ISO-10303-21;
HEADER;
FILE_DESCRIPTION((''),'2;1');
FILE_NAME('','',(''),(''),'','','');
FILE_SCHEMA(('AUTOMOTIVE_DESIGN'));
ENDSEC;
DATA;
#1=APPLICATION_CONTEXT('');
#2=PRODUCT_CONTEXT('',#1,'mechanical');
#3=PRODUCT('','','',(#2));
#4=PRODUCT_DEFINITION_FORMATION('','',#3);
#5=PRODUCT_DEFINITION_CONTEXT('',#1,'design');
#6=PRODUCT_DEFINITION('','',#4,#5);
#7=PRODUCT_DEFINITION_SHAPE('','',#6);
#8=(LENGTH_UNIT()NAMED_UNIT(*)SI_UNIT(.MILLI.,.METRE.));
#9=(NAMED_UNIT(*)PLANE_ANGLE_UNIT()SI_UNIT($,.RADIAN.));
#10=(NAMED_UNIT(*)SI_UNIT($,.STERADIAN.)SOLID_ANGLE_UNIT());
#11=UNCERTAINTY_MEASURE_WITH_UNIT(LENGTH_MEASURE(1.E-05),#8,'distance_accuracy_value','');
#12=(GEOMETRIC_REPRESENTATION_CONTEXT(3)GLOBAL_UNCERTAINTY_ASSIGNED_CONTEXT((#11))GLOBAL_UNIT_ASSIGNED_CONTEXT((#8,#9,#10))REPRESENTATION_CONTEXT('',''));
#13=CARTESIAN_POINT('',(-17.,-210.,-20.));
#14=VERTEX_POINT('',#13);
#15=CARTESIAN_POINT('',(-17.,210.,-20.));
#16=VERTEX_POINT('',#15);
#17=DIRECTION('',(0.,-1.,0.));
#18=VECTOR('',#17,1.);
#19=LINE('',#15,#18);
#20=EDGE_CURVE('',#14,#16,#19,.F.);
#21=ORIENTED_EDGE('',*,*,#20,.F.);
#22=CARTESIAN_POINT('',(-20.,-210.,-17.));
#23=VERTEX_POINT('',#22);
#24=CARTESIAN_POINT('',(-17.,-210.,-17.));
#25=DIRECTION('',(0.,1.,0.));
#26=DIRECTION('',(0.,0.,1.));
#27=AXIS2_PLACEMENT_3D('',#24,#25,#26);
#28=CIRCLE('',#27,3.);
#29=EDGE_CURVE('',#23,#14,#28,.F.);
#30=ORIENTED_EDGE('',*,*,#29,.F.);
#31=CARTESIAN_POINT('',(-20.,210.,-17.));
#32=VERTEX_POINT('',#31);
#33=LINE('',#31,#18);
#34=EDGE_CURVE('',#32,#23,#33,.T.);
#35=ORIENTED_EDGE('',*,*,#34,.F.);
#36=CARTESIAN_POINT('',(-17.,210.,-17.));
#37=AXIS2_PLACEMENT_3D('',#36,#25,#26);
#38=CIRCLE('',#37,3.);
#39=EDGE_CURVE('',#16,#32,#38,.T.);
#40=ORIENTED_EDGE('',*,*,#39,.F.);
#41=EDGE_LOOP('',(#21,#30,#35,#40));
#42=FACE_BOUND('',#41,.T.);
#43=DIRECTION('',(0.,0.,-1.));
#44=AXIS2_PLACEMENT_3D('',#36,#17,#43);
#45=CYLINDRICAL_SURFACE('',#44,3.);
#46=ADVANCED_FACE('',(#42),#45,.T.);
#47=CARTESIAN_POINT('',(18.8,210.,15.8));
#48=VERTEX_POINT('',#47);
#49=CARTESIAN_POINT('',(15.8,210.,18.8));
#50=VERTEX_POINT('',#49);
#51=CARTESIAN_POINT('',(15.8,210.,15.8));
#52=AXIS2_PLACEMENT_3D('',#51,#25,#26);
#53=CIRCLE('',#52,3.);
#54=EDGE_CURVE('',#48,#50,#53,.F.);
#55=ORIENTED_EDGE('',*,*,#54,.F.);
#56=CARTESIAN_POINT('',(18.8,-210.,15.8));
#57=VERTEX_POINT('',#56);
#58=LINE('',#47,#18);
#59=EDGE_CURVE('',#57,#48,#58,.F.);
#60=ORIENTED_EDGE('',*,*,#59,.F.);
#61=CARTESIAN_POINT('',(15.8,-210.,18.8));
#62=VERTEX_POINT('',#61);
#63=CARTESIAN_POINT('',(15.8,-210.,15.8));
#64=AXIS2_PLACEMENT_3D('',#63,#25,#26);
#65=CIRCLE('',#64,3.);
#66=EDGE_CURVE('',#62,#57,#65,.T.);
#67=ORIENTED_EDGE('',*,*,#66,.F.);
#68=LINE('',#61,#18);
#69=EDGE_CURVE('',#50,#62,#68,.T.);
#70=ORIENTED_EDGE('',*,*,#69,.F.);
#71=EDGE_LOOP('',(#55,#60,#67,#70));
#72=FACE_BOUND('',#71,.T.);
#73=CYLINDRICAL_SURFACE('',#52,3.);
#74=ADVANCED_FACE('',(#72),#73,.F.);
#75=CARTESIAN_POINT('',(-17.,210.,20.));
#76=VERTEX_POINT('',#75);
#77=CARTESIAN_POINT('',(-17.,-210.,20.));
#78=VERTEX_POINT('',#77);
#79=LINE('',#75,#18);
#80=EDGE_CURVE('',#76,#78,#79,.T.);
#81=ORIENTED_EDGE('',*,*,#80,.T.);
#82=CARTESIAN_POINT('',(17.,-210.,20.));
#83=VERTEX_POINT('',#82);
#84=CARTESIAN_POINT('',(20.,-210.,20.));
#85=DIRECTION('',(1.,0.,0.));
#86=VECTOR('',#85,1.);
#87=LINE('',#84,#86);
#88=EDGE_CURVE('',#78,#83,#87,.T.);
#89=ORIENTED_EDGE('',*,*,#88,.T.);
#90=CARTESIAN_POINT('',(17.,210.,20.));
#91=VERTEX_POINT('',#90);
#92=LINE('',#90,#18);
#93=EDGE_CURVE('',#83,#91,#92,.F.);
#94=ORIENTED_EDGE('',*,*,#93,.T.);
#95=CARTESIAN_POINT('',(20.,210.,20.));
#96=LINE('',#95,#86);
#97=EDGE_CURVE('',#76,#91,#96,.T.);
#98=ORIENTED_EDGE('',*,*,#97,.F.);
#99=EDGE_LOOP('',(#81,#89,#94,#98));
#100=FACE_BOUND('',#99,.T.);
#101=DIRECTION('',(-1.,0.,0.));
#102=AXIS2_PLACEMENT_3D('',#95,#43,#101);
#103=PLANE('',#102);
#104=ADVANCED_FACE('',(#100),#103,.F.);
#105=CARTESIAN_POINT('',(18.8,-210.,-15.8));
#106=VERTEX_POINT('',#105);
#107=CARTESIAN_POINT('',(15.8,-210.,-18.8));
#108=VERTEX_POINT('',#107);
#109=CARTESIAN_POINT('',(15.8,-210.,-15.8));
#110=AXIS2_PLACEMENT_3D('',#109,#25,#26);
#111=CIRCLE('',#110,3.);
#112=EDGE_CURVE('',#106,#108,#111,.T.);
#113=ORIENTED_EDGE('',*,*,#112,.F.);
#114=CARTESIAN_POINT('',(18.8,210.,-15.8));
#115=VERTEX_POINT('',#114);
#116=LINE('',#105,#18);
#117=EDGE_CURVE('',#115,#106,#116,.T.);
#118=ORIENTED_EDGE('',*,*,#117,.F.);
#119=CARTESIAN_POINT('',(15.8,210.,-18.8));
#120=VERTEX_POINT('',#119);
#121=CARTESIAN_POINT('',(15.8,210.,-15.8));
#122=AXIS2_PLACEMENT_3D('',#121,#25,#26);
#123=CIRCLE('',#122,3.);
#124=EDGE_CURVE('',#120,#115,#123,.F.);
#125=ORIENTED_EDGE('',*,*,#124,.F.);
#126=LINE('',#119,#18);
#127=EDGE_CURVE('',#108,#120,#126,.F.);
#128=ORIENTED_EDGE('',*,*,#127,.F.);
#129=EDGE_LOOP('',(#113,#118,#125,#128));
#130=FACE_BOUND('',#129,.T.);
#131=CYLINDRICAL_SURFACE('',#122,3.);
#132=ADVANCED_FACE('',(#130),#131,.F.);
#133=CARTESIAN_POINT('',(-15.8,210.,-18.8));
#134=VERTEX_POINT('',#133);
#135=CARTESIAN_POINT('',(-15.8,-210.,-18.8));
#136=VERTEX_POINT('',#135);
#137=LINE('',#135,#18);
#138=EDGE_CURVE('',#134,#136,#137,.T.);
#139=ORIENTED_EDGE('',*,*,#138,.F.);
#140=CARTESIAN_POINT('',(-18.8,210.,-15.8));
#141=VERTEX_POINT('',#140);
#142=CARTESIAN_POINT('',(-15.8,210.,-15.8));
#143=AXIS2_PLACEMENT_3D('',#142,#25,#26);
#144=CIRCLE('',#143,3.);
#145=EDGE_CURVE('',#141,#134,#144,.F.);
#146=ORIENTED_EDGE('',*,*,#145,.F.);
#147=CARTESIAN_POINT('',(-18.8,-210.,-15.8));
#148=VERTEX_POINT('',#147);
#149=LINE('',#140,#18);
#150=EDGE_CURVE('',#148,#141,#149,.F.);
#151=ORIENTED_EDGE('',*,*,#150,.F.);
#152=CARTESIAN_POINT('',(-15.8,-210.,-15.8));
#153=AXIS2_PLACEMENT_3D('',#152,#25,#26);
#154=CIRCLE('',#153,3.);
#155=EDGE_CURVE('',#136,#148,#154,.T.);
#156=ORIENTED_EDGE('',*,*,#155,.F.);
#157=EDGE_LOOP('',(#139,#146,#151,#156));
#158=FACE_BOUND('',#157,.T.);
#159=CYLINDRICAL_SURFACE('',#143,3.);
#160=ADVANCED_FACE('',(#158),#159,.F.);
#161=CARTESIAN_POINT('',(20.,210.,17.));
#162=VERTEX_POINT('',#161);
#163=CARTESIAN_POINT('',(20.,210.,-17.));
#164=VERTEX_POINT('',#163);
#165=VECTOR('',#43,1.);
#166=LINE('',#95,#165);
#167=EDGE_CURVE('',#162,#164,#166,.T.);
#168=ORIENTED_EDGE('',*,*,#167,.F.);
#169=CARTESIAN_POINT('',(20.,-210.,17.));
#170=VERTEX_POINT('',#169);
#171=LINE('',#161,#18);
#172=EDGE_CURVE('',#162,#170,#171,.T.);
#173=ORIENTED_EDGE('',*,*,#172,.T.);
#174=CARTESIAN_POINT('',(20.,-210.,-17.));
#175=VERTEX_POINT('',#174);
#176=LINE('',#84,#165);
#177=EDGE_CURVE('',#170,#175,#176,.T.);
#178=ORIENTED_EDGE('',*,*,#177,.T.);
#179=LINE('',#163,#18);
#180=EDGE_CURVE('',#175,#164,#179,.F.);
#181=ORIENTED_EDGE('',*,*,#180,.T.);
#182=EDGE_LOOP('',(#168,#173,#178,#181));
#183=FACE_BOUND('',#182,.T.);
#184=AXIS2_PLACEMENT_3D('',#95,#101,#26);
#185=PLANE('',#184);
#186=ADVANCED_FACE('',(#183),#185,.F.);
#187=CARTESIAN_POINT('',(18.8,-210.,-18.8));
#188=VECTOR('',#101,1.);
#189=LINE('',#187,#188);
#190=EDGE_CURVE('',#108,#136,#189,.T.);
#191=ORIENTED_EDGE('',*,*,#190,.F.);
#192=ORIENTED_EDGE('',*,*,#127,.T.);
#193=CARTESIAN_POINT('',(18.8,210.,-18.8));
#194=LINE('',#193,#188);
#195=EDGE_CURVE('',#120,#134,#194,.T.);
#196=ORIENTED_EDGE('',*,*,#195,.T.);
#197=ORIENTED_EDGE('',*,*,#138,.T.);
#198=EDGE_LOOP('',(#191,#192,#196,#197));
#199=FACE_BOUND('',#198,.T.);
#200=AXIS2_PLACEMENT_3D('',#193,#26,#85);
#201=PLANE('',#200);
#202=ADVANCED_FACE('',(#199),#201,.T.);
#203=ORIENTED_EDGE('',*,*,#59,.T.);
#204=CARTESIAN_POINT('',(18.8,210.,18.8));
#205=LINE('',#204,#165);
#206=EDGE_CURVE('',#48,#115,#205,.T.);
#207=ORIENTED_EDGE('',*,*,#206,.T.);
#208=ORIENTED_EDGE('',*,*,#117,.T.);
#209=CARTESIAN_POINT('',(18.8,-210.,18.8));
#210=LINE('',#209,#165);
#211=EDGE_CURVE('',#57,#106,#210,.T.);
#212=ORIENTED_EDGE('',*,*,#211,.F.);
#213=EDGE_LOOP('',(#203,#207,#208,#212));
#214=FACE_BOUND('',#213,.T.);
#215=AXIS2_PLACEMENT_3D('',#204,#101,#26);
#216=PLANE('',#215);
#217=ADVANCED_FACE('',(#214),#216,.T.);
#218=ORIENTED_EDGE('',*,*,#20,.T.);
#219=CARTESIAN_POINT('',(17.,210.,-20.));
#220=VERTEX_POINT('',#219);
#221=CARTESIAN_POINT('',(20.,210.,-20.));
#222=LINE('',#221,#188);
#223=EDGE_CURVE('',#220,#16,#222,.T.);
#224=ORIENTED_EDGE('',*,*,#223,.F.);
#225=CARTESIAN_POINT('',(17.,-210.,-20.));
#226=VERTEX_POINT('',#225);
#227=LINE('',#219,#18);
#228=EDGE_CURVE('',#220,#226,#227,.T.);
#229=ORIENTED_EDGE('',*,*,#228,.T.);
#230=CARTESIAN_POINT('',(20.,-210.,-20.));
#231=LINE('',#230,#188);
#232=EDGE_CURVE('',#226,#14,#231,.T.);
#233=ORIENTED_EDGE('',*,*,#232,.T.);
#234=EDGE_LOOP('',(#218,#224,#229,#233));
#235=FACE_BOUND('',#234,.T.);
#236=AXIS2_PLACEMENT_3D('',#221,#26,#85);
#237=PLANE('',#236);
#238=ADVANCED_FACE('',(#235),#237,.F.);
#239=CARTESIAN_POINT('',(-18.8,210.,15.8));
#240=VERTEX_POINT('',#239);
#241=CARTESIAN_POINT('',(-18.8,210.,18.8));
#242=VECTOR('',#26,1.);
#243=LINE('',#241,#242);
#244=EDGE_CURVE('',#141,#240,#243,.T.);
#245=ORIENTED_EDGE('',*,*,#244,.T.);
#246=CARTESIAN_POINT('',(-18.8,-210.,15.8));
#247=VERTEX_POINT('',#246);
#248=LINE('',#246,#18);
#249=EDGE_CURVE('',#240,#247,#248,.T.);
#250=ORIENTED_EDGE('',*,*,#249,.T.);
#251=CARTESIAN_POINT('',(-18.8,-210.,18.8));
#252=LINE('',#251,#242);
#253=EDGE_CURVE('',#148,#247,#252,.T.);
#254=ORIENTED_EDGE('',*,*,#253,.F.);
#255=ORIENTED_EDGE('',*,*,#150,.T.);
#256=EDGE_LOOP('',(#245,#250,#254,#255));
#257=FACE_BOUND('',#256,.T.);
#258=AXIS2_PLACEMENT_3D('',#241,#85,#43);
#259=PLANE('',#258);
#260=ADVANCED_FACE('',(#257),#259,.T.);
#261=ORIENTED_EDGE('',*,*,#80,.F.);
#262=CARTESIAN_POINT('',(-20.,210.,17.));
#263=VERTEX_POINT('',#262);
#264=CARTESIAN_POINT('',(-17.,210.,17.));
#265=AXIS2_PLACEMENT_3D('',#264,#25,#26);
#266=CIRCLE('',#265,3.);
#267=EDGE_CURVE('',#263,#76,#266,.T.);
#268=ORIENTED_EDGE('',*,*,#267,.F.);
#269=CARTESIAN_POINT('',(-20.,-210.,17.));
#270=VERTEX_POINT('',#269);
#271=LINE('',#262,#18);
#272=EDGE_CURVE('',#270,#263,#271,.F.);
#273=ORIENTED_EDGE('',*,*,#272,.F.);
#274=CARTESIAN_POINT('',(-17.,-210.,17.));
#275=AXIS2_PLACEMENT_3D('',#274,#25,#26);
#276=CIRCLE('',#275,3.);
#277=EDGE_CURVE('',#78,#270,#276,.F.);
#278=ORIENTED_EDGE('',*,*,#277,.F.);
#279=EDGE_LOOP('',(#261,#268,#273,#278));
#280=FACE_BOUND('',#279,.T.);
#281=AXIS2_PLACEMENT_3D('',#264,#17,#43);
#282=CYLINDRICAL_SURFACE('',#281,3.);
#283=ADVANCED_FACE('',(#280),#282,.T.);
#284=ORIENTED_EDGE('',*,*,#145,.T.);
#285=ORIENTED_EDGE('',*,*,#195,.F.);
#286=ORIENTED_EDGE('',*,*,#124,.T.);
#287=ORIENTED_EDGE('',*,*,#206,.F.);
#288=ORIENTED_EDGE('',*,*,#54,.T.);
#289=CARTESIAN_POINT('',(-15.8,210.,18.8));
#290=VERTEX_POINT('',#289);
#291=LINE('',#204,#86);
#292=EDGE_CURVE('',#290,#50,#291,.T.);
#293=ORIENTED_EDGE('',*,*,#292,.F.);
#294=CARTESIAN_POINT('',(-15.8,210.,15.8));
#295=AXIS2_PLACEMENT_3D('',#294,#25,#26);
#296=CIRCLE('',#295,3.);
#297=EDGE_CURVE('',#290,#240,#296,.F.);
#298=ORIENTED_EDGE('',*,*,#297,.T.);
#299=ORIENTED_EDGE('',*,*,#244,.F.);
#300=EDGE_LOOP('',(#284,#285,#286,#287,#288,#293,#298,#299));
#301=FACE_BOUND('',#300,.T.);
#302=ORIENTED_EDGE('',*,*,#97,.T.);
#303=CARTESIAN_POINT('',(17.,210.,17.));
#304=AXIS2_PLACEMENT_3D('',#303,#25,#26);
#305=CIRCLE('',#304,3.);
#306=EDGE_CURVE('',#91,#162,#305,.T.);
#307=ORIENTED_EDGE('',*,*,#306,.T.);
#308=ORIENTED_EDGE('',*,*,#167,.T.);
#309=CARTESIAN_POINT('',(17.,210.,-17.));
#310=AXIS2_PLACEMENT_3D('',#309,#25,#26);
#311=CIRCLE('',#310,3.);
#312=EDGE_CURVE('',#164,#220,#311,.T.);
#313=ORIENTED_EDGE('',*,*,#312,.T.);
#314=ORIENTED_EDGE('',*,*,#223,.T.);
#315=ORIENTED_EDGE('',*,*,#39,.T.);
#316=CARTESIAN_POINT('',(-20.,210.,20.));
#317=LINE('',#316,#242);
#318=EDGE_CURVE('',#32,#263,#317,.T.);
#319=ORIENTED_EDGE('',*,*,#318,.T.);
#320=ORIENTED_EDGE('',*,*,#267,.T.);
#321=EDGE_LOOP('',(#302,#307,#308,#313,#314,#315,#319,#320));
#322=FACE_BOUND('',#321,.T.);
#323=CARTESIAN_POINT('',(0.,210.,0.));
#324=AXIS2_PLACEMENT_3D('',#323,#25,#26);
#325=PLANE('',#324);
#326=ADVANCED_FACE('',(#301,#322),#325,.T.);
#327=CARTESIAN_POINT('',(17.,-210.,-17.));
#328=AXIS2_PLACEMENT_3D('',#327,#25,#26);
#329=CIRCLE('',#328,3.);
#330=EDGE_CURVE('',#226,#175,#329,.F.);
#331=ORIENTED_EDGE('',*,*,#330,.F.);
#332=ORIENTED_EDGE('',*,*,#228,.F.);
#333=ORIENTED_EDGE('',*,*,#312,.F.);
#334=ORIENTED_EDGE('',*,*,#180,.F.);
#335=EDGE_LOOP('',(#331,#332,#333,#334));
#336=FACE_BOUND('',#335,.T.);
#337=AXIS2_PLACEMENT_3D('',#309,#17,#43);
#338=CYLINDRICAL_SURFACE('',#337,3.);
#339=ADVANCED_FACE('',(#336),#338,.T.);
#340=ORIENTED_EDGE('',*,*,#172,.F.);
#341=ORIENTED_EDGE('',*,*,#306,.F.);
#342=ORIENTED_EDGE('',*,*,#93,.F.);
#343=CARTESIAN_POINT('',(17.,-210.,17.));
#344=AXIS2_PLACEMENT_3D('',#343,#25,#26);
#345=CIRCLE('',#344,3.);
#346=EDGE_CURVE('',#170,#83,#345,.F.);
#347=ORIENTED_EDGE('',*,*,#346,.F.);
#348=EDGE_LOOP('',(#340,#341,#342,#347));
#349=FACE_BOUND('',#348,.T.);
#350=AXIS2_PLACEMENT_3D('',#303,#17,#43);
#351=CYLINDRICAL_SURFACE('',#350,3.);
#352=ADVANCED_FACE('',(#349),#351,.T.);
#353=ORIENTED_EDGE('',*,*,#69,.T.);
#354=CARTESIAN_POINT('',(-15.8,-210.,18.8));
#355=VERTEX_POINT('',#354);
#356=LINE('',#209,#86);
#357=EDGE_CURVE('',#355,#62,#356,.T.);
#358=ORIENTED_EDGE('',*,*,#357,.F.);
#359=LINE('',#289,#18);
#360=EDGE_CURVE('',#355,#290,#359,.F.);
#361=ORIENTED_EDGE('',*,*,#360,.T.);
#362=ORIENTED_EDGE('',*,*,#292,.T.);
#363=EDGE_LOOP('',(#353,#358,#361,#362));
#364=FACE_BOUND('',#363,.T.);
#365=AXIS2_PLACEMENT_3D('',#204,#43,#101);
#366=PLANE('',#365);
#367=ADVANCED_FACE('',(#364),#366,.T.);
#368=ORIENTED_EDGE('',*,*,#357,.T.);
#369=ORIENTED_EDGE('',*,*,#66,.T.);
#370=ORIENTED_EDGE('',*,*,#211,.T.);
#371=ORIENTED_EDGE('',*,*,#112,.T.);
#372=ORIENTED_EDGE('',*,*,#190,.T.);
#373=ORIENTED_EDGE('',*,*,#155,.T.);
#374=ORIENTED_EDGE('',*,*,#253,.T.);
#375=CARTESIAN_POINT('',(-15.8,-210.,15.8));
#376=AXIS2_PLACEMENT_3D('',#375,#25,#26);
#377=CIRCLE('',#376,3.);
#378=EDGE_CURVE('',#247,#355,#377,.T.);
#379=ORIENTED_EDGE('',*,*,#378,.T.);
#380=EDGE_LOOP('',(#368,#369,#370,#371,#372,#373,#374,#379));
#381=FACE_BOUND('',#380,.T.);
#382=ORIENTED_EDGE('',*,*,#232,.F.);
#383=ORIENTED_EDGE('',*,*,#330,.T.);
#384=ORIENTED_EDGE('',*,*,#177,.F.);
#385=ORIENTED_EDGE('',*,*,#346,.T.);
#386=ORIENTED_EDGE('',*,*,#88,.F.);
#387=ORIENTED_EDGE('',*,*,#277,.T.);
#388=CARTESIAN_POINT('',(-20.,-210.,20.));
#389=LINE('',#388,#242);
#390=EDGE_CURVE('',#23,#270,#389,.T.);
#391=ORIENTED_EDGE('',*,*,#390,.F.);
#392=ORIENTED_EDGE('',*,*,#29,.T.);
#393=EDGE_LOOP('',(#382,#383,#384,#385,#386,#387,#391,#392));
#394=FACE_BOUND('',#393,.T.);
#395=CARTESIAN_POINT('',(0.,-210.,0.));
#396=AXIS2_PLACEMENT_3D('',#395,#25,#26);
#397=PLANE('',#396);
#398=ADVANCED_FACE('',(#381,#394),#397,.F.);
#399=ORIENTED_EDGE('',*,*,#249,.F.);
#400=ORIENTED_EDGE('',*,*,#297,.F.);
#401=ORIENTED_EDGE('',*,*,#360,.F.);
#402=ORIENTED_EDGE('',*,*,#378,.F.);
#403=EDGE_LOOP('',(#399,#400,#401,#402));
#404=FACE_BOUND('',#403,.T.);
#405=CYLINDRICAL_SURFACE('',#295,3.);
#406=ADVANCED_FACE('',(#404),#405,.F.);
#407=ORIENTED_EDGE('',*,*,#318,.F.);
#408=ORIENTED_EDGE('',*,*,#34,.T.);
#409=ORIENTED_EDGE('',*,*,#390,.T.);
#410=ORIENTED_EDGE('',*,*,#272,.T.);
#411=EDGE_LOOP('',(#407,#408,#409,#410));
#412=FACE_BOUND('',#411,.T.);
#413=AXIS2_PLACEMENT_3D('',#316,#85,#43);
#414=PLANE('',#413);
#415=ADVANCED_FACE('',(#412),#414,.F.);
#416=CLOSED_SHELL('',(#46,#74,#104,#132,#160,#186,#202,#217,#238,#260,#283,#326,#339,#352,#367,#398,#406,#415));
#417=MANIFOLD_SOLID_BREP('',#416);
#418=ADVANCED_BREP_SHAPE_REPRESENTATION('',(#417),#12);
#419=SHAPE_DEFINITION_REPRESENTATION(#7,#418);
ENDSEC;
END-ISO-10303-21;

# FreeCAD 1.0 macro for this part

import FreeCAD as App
import Part
import Sketcher
Q = App.Units.Quantity


def edges_at(feature, points):
    """Names of the edges that pass closest to the given points."""
    edges = feature.Shape.Edges
    near = lambda p: min(range(len(edges)), key=lambda i: edges[i].distToShape(Part.Vertex(*p))[0])
    return sorted({f"Edge{near(p) + 1}" for p in points})

doc = App.newDocument("Part")
params = doc.addObject("Spreadsheet::Sheet", "Params")
for row, (alias, value) in enumerate([
    ("sketch1_width", "40 mm"),
    ("sketch1_width2", "37.6 mm"),
    ("pad1_length", "420 mm"),
    ("fillet_radius", "3 mm"),
], start=1):
    params.set(f"A{row}", alias)
    params.set(f"B{row}", "=" + value)
    params.setAlias(f"B{row}", alias)

body = doc.addObject("PartDesign::Body", "Body")

sketch1 = doc.addObject("Sketcher::SketchObject", "Sketch")
body.addObject(sketch1)
sketch1.AttachmentSupport = (doc.XZ_Plane, [""])
sketch1.MapMode = "FlatFace"
sketch1.addGeometry([
    Part.LineSegment(App.Vector(-20, -20, 0), App.Vector(-20, 20, 0)),
    Part.LineSegment(App.Vector(-20, 20, 0), App.Vector(20, 20, 0)),
    Part.LineSegment(App.Vector(20, 20, 0), App.Vector(20, -20, 0)),
    Part.LineSegment(App.Vector(20, -20, 0), App.Vector(-20, -20, 0)),
    Part.LineSegment(App.Vector(18.8, 18.8, 0), App.Vector(-18.8, 18.8, 0)),
    Part.LineSegment(App.Vector(-18.8, 18.8, 0), App.Vector(-18.8, -18.8, 0)),
    Part.LineSegment(App.Vector(-18.8, -18.8, 0), App.Vector(18.8, -18.8, 0)),
    Part.LineSegment(App.Vector(18.8, -18.8, 0), App.Vector(18.8, 18.8, 0)),
], False)
sketch1.addConstraint([
    Sketcher.Constraint("Coincident", 0, 2, 1, 1),
    Sketcher.Constraint("Coincident", 1, 2, 2, 1),
    Sketcher.Constraint("Coincident", 2, 2, 3, 1),
    Sketcher.Constraint("Coincident", 3, 2, 0, 1),
    Sketcher.Constraint("Coincident", 4, 2, 5, 1),
    Sketcher.Constraint("Coincident", 5, 2, 6, 1),
    Sketcher.Constraint("Coincident", 6, 2, 7, 1),
    Sketcher.Constraint("Coincident", 7, 2, 4, 1),
    Sketcher.Constraint("Vertical", 0),
    Sketcher.Constraint("Horizontal", 1),
    Sketcher.Constraint("Vertical", 2),
    Sketcher.Constraint("Horizontal", 3),
    Sketcher.Constraint("Horizontal", 4),
    Sketcher.Constraint("Vertical", 5),
    Sketcher.Constraint("Horizontal", 6),
    Sketcher.Constraint("Vertical", 7),
    Sketcher.Constraint("Symmetric", 0, 2, 2, 2, -1, 1),
    Sketcher.Constraint("Symmetric", 4, 2, 6, 2, -1, 1),
    Sketcher.Constraint("Equal", 3, 0),
    Sketcher.Constraint("Equal", 6, 5),
    Sketcher.Constraint("DistanceX", 1, 1, 1, 2, Q("40 mm")),
    Sketcher.Constraint("DistanceX", 4, 2, 4, 1, Q("37.6 mm")),
])
sketch1.setExpression("Constraints[20]", "Params.sketch1_width")
sketch1.setExpression("Constraints[21]", "Params.sketch1_width2")
pad1 = doc.addObject("PartDesign::Pad", "Pad")
body.addObject(pad1)
pad1.Profile = sketch1
pad1.setExpression("Length", "Params.pad1_length")
pad1.Midplane = True
doc.recompute()

fillet = doc.addObject("PartDesign::Fillet", "Fillet")
body.addObject(fillet)
fillet.Base = (pad1, edges_at(pad1, [
    (-18.8, 0, 18.8),
    (18.8, 0, 18.8),
    (18.8, 0, -18.8),
    (-18.8, 0, -18.8),
    (-20, 0, -20),
    (20, 0, -20),
    (20, 0, 20),
    (-20, 0, 20),
]))
fillet.setExpression("Radius", "Params.fillet_radius")

doc.recompute()
